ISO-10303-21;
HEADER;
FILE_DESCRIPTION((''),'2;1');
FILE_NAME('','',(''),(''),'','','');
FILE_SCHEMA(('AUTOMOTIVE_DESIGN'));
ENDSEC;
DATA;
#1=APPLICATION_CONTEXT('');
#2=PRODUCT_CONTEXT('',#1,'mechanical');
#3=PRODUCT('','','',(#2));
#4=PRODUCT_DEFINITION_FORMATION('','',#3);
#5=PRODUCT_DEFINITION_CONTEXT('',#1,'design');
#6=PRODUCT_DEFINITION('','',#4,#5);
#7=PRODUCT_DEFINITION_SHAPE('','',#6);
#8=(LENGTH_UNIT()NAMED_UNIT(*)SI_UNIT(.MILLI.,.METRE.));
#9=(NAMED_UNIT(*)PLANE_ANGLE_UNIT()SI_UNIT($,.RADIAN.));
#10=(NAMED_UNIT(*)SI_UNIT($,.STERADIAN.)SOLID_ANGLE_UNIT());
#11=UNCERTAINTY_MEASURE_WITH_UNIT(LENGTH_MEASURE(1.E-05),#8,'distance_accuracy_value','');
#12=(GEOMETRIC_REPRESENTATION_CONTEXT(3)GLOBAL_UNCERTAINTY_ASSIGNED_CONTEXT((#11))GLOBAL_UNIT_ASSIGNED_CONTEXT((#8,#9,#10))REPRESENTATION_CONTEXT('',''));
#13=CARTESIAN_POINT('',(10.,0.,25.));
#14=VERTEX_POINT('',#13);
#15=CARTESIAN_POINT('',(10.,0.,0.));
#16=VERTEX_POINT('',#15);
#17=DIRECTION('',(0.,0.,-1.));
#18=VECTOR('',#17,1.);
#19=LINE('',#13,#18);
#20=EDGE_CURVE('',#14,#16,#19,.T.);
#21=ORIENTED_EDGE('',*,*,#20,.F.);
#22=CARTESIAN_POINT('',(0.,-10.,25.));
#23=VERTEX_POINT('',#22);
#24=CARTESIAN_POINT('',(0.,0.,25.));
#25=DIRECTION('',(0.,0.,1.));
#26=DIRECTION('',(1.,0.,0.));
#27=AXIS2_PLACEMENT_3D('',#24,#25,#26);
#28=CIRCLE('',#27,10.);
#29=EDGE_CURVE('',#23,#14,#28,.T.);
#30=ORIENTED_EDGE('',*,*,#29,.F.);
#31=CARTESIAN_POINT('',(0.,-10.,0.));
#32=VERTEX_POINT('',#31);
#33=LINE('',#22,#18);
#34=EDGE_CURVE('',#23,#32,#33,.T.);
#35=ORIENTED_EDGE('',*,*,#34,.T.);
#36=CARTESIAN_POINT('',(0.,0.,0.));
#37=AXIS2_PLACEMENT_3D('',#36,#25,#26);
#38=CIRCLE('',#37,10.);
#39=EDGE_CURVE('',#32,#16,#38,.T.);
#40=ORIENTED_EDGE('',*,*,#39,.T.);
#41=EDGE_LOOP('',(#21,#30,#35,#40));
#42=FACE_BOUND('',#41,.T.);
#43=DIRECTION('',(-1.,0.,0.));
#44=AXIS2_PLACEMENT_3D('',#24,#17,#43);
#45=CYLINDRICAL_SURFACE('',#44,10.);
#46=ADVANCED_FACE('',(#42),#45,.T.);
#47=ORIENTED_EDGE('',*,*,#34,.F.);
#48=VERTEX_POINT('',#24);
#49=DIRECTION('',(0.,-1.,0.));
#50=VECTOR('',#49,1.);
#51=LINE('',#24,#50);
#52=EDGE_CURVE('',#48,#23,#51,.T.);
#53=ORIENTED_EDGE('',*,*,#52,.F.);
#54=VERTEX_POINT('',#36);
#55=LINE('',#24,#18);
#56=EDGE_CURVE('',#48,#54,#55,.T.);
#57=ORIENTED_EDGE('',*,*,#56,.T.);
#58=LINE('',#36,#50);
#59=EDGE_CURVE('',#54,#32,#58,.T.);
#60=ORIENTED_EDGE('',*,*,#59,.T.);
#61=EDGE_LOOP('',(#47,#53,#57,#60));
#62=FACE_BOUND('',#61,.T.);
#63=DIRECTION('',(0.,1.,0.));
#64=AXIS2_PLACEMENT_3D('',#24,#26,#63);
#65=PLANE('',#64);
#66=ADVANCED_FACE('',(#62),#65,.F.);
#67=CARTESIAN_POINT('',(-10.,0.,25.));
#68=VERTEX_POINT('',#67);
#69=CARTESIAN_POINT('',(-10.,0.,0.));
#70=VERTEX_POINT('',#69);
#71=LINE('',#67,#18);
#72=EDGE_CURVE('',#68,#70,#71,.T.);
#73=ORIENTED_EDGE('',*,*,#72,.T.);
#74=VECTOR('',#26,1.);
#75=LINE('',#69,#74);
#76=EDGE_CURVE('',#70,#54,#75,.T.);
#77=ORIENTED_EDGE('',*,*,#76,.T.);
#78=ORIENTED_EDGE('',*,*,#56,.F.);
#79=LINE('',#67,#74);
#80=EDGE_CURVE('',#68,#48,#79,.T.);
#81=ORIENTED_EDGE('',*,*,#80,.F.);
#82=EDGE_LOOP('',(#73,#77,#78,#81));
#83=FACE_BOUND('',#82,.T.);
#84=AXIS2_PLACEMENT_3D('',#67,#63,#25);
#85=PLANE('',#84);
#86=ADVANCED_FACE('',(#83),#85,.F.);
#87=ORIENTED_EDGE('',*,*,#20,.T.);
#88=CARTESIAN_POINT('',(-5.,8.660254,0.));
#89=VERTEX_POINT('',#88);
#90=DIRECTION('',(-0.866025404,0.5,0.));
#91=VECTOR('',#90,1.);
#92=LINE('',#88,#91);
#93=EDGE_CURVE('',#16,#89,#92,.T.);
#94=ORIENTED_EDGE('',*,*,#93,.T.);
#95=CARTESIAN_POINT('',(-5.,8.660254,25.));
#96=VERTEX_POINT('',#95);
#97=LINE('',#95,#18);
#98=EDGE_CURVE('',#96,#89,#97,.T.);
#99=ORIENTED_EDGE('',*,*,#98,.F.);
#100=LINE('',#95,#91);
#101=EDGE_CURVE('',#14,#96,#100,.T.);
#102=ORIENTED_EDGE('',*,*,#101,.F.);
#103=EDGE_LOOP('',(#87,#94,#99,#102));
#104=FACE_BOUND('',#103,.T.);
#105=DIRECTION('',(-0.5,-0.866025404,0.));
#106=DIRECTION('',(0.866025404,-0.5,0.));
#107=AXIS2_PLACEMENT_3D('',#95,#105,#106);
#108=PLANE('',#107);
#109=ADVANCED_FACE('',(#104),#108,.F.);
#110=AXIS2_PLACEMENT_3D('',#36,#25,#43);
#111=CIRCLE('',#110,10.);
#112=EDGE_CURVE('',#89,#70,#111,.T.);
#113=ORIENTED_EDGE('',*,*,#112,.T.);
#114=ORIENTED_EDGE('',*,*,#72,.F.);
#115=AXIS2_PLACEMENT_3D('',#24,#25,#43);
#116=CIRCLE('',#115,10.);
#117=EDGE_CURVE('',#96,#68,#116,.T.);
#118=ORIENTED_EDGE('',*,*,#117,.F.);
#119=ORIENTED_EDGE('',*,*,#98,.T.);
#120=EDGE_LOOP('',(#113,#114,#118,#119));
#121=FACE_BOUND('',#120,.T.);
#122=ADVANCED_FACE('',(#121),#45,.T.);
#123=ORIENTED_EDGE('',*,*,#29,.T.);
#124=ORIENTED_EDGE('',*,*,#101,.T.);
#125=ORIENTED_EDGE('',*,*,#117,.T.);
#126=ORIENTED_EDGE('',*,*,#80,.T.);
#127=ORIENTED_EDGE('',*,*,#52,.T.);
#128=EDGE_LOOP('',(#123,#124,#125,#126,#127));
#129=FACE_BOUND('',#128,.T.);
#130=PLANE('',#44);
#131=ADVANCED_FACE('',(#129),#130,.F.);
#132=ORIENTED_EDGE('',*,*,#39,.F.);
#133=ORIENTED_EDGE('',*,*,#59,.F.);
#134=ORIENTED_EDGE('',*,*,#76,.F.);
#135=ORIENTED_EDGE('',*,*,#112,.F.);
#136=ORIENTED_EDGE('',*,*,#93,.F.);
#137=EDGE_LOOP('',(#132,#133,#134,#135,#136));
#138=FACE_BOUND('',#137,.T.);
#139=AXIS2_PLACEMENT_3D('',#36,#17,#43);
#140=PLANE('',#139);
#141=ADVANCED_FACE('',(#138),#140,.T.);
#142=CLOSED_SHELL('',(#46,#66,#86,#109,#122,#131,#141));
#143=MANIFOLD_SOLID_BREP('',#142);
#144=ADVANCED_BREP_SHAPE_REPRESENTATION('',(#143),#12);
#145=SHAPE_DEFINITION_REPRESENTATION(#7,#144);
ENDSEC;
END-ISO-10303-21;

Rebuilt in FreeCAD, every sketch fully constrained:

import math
import FreeCAD as App
import Part
import Sketcher

V = App.Vector
Q = App.Units.Quantity

doc = App.newDocument("Part")
params = doc.addObject("Spreadsheet::Sheet", "Params")
for row, (alias, value) in enumerate([
    ("sketch1_radius", "10 mm"),
    ("pad1_length", "25 mm"),
], start=1):
    params.set(f"A{row}", alias)
    params.set(f"B{row}", "=" + value)
    params.setAlias(f"B{row}", alias)

body = doc.addObject("PartDesign::Body", "Body")

sketch1 = body.newObject("Sketcher::SketchObject", "Sketch")
sketch1.AttachmentSupport = (doc.getObject("XY_Plane"), [""])
sketch1.MapMode = "FlatFace"
sketch1.addGeometry([
    Part.LineSegment(V(-10, 0, 0), V(0, 0, 0)),
    Part.LineSegment(V(0, 0, 0), V(0, -10, 0)),
    Part.ArcOfCircle(Part.Circle(V(0, 0, 0), V(0, 0, 1), 10), math.radians(-90), math.radians(0)),
    Part.LineSegment(V(10, 0, 0), V(-5, 9, 0)),
    Part.ArcOfCircle(Part.Circle(V(0, 0, 0), V(0, 0, 1), 10), math.radians(120), math.radians(180)),
], False)
sketch1.addConstraint([
    Sketcher.Constraint("Coincident", 0, 2, 1, 1),
    Sketcher.Constraint("Coincident", 1, 2, 2, 1),
    Sketcher.Constraint("Coincident", 2, 2, 3, 1),
    Sketcher.Constraint("Coincident", 3, 2, 4, 1),
    Sketcher.Constraint("Coincident", 4, 2, 0, 1),
    Sketcher.Constraint("Horizontal", 0),
    Sketcher.Constraint("Vertical", 1),
    Sketcher.Constraint("Coincident", 2, 3, -1, 1),
    Sketcher.Constraint("Coincident", 4, 3, -1, 1),
    Sketcher.Constraint("Coincident", 0, 2, -1, 1),
    Sketcher.Constraint("Equal", 2, 4),
    Sketcher.Constraint("PointOnObject", 2, 2, -1),
    Sketcher.Constraint("Radius", 2, 10.0),
    Sketcher.Constraint("Angle", 3, Q("150 deg")),
])
sketch1.setExpression("Constraints[12]", "Params.sketch1_radius")
pad1 = body.newObject("PartDesign::Pad", "Pad")
pad1.Profile = sketch1
pad1.setExpression("Length", "Params.pad1_length")

doc.recompute()
